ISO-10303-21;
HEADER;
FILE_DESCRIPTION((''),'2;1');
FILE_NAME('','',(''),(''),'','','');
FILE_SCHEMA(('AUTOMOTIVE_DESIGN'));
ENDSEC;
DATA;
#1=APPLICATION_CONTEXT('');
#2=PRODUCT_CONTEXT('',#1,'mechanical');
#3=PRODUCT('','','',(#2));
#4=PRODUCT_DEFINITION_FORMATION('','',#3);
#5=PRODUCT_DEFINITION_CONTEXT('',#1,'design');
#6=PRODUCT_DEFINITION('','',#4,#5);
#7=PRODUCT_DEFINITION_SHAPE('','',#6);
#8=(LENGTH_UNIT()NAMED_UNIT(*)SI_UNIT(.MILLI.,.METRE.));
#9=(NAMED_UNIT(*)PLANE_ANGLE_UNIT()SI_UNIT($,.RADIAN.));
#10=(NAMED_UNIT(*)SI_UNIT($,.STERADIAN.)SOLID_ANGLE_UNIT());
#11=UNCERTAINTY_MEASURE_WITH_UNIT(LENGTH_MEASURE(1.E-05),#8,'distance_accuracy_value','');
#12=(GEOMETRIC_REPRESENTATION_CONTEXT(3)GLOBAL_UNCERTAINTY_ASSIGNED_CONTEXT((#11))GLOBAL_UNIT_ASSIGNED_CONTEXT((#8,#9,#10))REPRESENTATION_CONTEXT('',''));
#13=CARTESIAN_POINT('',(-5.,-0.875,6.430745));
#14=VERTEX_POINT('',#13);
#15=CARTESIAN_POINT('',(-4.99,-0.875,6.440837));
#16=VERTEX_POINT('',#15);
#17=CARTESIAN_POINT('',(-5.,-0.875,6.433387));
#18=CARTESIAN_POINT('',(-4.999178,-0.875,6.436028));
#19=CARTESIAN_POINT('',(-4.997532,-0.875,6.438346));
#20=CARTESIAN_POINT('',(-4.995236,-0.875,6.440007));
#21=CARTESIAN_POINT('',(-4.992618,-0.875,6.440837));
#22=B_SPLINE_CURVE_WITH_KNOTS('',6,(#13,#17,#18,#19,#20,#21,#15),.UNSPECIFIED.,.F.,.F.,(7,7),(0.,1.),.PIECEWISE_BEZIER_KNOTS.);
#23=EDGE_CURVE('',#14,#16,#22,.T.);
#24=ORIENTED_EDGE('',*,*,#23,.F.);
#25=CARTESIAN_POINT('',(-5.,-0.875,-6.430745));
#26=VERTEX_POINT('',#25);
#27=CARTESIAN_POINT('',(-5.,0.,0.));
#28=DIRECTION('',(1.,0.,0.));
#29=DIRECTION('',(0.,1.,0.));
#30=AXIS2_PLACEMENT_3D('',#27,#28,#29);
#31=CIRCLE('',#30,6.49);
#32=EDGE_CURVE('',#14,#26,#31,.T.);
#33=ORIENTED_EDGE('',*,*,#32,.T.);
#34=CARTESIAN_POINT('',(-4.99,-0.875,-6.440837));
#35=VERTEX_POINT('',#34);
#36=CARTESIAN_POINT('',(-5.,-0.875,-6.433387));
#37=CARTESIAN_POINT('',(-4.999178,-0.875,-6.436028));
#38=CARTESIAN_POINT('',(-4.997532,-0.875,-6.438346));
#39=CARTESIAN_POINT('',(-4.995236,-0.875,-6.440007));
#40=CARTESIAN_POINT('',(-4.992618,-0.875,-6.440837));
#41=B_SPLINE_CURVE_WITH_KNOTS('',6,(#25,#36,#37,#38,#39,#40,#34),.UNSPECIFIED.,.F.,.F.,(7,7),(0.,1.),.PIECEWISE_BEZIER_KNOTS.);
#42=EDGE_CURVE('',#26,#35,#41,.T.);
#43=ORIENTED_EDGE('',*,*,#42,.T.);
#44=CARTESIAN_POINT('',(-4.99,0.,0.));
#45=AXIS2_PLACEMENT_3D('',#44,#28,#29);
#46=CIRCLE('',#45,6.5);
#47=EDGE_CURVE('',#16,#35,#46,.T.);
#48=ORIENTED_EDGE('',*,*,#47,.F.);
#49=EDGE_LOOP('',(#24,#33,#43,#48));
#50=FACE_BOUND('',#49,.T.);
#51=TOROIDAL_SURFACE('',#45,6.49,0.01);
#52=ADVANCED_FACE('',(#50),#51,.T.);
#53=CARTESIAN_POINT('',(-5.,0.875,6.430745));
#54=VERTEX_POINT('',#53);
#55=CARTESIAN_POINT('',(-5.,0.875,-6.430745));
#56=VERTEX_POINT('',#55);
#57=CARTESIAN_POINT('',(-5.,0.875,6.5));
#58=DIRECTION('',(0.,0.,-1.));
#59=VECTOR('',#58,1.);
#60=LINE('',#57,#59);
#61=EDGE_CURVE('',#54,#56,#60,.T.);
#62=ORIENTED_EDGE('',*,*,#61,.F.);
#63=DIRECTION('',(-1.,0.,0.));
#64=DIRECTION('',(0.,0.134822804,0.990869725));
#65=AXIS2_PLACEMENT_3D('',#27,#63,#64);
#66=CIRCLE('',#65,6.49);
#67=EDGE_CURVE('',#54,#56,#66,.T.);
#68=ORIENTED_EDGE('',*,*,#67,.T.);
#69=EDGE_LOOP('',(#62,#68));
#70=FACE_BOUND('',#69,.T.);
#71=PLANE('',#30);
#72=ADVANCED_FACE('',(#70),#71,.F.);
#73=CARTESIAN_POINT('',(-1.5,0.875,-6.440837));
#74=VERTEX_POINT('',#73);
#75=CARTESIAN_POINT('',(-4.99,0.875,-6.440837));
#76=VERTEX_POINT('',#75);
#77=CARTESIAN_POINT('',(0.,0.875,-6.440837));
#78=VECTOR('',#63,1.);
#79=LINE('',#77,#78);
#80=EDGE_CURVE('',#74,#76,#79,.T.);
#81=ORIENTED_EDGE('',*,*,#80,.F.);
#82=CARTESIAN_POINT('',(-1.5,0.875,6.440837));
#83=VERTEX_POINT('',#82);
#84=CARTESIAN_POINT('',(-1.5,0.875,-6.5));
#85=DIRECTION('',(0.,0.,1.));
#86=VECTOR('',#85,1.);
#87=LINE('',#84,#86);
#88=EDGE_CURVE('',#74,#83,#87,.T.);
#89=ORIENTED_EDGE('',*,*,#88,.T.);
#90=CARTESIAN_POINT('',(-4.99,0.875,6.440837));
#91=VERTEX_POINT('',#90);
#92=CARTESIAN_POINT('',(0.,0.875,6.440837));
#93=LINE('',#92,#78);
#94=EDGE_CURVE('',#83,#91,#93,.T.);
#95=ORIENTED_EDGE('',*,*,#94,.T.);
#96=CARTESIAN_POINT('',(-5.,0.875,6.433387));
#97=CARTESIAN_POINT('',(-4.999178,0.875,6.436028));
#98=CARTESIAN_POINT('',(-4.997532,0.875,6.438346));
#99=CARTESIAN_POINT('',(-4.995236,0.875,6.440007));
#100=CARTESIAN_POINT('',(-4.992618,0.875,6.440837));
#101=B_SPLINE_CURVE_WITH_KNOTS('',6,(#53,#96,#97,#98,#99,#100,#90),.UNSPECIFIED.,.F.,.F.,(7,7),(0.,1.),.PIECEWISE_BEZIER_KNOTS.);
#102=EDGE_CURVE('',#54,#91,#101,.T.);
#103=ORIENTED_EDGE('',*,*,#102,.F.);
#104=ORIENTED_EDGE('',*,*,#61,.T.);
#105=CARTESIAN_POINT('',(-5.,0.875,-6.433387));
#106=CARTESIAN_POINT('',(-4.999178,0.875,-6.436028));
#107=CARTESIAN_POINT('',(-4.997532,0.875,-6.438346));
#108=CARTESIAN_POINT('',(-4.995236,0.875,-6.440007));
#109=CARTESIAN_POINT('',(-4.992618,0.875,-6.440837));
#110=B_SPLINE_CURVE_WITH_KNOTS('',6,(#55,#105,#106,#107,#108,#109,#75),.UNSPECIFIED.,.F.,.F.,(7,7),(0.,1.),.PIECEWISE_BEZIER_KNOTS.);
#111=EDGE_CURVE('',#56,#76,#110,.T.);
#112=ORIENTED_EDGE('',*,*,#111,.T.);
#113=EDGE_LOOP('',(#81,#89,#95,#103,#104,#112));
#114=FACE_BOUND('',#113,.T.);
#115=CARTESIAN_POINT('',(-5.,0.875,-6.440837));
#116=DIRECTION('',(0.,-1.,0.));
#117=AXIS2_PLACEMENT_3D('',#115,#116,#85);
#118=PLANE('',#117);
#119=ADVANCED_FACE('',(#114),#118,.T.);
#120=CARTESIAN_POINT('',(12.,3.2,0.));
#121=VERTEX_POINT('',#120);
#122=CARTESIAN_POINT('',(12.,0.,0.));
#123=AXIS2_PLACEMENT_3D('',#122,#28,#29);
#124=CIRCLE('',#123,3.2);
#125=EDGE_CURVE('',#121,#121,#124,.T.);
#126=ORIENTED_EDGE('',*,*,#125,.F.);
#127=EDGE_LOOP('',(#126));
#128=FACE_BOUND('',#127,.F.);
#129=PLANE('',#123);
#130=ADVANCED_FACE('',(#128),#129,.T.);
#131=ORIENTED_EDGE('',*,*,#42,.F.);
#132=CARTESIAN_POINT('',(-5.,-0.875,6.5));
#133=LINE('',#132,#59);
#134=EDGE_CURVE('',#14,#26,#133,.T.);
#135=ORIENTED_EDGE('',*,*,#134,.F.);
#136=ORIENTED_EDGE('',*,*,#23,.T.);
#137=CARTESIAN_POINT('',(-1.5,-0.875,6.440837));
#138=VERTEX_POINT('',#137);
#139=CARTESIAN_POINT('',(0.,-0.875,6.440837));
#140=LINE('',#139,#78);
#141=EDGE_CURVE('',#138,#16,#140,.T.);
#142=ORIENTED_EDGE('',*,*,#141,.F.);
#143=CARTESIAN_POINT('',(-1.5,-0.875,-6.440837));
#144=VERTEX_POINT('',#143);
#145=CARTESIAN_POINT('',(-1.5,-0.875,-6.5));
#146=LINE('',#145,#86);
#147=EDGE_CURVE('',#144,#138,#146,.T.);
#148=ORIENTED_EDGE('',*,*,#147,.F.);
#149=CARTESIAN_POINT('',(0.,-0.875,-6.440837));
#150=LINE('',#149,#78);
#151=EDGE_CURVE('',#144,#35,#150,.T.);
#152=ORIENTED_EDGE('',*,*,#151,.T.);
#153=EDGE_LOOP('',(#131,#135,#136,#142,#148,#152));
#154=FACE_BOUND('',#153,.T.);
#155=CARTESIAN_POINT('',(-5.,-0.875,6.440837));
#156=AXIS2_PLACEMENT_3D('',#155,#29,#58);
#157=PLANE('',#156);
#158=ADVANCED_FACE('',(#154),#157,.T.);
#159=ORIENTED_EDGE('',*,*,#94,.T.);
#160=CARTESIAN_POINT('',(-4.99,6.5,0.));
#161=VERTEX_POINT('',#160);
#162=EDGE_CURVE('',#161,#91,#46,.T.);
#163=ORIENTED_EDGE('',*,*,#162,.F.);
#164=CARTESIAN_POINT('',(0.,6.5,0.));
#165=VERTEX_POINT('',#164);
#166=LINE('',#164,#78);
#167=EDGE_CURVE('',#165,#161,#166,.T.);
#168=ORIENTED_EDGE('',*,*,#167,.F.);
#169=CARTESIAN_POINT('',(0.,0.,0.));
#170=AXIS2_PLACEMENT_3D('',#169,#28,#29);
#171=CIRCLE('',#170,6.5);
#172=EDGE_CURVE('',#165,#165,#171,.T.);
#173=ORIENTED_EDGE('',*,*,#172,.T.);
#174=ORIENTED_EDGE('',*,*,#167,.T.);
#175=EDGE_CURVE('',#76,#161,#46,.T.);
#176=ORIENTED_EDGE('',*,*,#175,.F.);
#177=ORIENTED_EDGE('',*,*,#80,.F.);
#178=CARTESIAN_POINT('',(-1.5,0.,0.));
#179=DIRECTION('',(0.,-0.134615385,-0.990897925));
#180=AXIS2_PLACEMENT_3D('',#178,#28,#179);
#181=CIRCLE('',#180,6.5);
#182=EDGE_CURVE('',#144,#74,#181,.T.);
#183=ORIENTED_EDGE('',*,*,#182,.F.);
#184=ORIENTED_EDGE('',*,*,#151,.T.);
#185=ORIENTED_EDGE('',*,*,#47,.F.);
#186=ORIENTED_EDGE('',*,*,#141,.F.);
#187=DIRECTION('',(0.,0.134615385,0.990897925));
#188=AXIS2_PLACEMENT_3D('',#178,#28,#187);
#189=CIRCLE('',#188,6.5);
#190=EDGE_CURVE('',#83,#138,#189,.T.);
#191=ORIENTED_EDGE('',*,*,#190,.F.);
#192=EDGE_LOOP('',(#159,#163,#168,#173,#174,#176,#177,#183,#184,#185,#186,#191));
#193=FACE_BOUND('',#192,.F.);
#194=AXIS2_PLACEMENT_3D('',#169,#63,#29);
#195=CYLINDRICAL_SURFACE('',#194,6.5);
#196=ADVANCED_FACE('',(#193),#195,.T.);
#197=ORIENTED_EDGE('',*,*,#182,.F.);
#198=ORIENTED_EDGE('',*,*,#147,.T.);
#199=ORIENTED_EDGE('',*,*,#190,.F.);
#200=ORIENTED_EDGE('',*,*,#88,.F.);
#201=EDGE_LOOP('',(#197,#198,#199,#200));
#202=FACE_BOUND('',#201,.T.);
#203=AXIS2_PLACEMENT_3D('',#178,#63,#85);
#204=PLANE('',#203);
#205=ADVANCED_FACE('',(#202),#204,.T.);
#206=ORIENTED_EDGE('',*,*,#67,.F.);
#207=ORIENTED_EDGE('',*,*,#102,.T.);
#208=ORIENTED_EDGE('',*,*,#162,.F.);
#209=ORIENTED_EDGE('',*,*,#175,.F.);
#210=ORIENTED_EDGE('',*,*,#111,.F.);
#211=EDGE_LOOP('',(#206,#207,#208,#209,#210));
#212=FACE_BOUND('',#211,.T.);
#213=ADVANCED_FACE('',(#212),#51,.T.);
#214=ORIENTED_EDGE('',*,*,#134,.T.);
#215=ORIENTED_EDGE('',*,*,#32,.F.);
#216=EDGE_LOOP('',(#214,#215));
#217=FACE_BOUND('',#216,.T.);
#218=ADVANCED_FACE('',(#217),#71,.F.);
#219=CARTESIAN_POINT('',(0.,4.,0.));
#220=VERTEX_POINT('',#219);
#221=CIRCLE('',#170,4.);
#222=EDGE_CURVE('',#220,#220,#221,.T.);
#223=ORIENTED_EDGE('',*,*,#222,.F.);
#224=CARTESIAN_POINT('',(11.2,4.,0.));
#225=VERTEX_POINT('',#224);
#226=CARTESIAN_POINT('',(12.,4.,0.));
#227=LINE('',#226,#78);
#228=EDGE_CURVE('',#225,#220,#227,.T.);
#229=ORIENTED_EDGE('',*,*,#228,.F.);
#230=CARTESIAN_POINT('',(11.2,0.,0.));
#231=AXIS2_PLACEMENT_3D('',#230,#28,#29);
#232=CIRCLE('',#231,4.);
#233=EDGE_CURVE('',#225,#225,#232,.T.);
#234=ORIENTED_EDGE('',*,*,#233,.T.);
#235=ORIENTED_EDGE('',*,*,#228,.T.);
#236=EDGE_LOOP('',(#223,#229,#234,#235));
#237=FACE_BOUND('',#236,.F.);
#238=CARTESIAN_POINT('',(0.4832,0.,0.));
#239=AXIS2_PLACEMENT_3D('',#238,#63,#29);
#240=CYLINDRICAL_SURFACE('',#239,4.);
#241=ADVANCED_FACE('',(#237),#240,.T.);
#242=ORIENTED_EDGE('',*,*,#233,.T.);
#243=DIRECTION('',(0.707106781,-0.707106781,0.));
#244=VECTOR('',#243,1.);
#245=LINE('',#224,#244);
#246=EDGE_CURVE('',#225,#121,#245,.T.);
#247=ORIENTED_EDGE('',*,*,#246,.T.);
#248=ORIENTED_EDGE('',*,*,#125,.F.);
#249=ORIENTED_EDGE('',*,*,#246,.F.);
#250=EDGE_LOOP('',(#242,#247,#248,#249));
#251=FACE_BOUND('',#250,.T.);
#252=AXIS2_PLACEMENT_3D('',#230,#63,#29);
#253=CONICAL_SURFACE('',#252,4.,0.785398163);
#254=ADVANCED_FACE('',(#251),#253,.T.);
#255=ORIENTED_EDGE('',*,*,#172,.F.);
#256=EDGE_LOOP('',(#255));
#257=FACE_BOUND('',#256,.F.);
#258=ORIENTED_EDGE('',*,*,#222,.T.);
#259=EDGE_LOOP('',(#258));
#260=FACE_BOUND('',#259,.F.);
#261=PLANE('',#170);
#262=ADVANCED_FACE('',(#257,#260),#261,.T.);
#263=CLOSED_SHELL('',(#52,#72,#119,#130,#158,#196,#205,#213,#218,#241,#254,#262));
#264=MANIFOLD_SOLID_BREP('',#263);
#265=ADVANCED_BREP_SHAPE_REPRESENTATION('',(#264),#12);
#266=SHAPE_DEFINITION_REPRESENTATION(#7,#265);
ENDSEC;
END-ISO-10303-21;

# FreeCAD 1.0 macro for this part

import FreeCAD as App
import Part
import Sketcher


def edges_at(feature, points):
    """Names of the edges that pass closest to the given points."""
    edges = feature.Shape.Edges
    near = lambda p: min(range(len(edges)), key=lambda i: edges[i].distToShape(Part.Vertex(*p))[0])
    return sorted({f"Edge{near(p) + 1}" for p in points})

doc = App.newDocument("Part")
body = doc.addObject("PartDesign::Body", "Body")

# Sketch on XY plane
sketch1 = body.newObject("Sketcher::SketchObject", "Sketch")
sketch1.AttachmentSupport = (doc.getObject("XY_Plane"), [""])
sketch1.MapMode = "FlatFace"
sketch1.addGeometry(Part.LineSegment(App.Vector(-5, 6.5, 0), App.Vector(-5, 0, 0)), False)
sketch1.addGeometry(Part.LineSegment(App.Vector(-5, 0, 0), App.Vector(12, 0, 0)), False)
sketch1.addGeometry(Part.LineSegment(App.Vector(12, 0, 0), App.Vector(12, 4, 0)), False)
sketch1.addGeometry(Part.LineSegment(App.Vector(12, 4, 0), App.Vector(0, 4, 0)), False)
sketch1.addGeometry(Part.LineSegment(App.Vector(0, 4, 0), App.Vector(0, 6.5, 0)), False)
sketch1.addGeometry(Part.LineSegment(App.Vector(0, 6.5, 0), App.Vector(-5, 6.5, 0)), False)
sketch1.addConstraint(Sketcher.Constraint("Coincident", 0, 2, 1, 1))
sketch1.addConstraint(Sketcher.Constraint("Coincident", 1, 2, 2, 1))
sketch1.addConstraint(Sketcher.Constraint("Coincident", 2, 2, 3, 1))
sketch1.addConstraint(Sketcher.Constraint("Coincident", 3, 2, 4, 1))
sketch1.addConstraint(Sketcher.Constraint("Coincident", 4, 2, 5, 1))
sketch1.addConstraint(Sketcher.Constraint("Coincident", 5, 2, 0, 1))
sketch1.addConstraint(Sketcher.Constraint("Vertical", 0))
sketch1.addConstraint(Sketcher.Constraint("Horizontal", 1))
sketch1.addConstraint(Sketcher.Constraint("Vertical", 2))
sketch1.addConstraint(Sketcher.Constraint("Horizontal", 3))
sketch1.addConstraint(Sketcher.Constraint("Vertical", 4))
sketch1.addConstraint(Sketcher.Constraint("Horizontal", 5))
sketch1.addConstraint(Sketcher.Constraint("PointOnObject", 0, 2, -1))
sketch1.addConstraint(Sketcher.Constraint("PointOnObject", 3, 2, -2))
sketch1.addConstraint(Sketcher.Constraint("DistanceX", 3, 2, 3, 1, 12.0))
sketch1.addConstraint(Sketcher.Constraint("DistanceX", 5, 2, 5, 1, 5.0))
sketch1.addConstraint(Sketcher.Constraint("DistanceY", 2, 1, 2, 2, 4.0))
sketch1.addConstraint(Sketcher.Constraint("DistanceY", 0, 2, 0, 1, 6.5))
revolution = body.newObject("PartDesign::Revolution", "Revolution")
revolution.Profile = sketch1
revolution.ReferenceAxis = (sketch1, ["H_Axis"])
revolution.Angle = 360
doc.recompute()

fillet = body.newObject("PartDesign::Fillet", "Fillet")
fillet.Base = (revolution, edges_at(revolution, [(-5, -6.5, 0)]))
fillet.Radius = 0.01

# Sketch on YZ plane
sketch2 = body.newObject("Sketcher::SketchObject", "Sketch001")
sketch2.AttachmentSupport = (doc.getObject("YZ_Plane"), [""])
sketch2.MapMode = "FlatFace"
sketch2.AttachmentOffset = App.Placement(App.Vector(0, 0, -5), App.Rotation())
sketch2.addGeometry(Part.LineSegment(App.Vector(-0.875, 6.5, 0), App.Vector(0.875, 6.5, 0)), False)
sketch2.addGeometry(Part.LineSegment(App.Vector(0.875, 6.5, 0), App.Vector(0.875, -6.5, 0)), False)
sketch2.addGeometry(Part.LineSegment(App.Vector(0.875, -6.5, 0), App.Vector(-0.875, -6.5, 0)), False)
sketch2.addGeometry(Part.LineSegment(App.Vector(-0.875, -6.5, 0), App.Vector(-0.875, 6.5, 0)), False)
sketch2.addConstraint(Sketcher.Constraint("Coincident", 0, 2, 1, 1))
sketch2.addConstraint(Sketcher.Constraint("Coincident", 1, 2, 2, 1))
sketch2.addConstraint(Sketcher.Constraint("Coincident", 2, 2, 3, 1))
sketch2.addConstraint(Sketcher.Constraint("Coincident", 3, 2, 0, 1))
sketch2.addConstraint(Sketcher.Constraint("Horizontal", 0))
sketch2.addConstraint(Sketcher.Constraint("Vertical", 1))
sketch2.addConstraint(Sketcher.Constraint("Horizontal", 2))
sketch2.addConstraint(Sketcher.Constraint("Vertical", 3))
sketch2.addConstraint(Sketcher.Constraint("Symmetric", 0, 2, 2, 2, -1, 1))
sketch2.addConstraint(Sketcher.Constraint("DistanceY", 1, 2, 1, 1, 13.0))
sketch2.addConstraint(Sketcher.Constraint("DistanceX", 0, 1, 0, 2, 1.75))
pocket1 = body.newObject("PartDesign::Pocket", "Pocket")
pocket1.Profile = sketch2
pocket1.Length = 3.5
pocket1.Reversed = True
doc.recompute()

chamfer = body.newObject("PartDesign::Chamfer", "Chamfer")
chamfer.Base = (pocket1, edges_at(pocket1, [(12, -4, 0)]))
chamfer.Size = 0.8

doc.recompute()
